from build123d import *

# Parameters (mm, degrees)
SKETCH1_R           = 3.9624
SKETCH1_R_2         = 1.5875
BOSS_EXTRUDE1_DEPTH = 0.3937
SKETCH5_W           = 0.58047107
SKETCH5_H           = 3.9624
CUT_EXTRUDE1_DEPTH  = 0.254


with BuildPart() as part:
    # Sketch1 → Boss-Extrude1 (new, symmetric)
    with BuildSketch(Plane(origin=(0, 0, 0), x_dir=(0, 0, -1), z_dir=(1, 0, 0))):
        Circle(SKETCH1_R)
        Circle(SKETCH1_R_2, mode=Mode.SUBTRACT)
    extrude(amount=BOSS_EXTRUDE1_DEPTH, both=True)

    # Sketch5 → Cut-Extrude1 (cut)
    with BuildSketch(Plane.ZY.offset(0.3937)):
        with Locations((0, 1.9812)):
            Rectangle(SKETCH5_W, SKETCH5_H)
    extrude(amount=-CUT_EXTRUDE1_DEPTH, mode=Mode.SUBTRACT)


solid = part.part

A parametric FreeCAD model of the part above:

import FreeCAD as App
import Part
import Sketcher

V = App.Vector
Q = App.Units.Quantity


def add_polygon(sketch, points):
    """Adds a closed chain of lines whose ends are joined by coincident constraints."""
    first, n = sketch.GeometryCount, len(points)
    for a, b in zip(points, points[1:] + points[:1]):
        sketch.addGeometry(Part.LineSegment(App.Vector(*a, 0), App.Vector(*b, 0)), False)
    for i in range(n):
        sketch.addConstraint(Sketcher.Constraint("Coincident", first + i, 2, first + (i + 1) % n, 1))

doc = App.newDocument("Part")
body = doc.addObject("PartDesign::Body", "Body")

# Sketch on YZ plane
sketch1 = body.newObject("Sketcher::SketchObject", "Sketch")
sketch1.AttachmentSupport = (doc.getObject("YZ_Plane"), [""])
sketch1.MapMode = "FlatFace"
sketch1.addGeometry(Part.Circle(V(0, 0, 0), V(0, 0, 1), 4), False)
sketch1.addGeometry(Part.Circle(V(0, 0, 0), V(0, 0, 1), 1.6), False)
sketch1.addConstraint(Sketcher.Constraint("Coincident", 0, 3, -1, 1))
sketch1.addConstraint(Sketcher.Constraint("Coincident", 1, 3, -1, 1))
sketch1.addConstraint(Sketcher.Constraint("Diameter", 0, Q("0.312 in")))
sketch1.addConstraint(Sketcher.Constraint("Diameter", 1, Q("0.125 in")))
pad1 = body.newObject("PartDesign::Pad", "Pad")
pad1.Profile = sketch1
pad1.Length = Q("0.031 in")
pad1.Midplane = True

# Sketch on YZ plane
sketch2 = body.newObject("Sketcher::SketchObject", "Sketch001")
sketch2.AttachmentSupport = (doc.getObject("YZ_Plane"), [""])
sketch2.MapMode = "FlatFace"
sketch2.AttachmentOffset = App.Placement(V(0, 0, -0.0155 * 25.4), App.Rotation())
add_polygon(sketch2, [(4, -0.3), (0, -0.3), (0, 0.3), (4, 0.3)])  # lines 0-3
sketch2.addConstraint(Sketcher.Constraint("Horizontal", 0))
sketch2.addConstraint(Sketcher.Constraint("Vertical", 1))
sketch2.addConstraint(Sketcher.Constraint("Horizontal", 2))
sketch2.addConstraint(Sketcher.Constraint("Vertical", 3))
sketch2.addConstraint(Sketcher.Constraint("Symmetric", 0, 2, 1, 2, -1, 1))
sketch2.addConstraint(Sketcher.Constraint("DistanceX", 0, 2, 0, 1, Q("0.156 in")))
sketch2.addConstraint(Sketcher.Constraint("DistanceY", 1, 1, 1, 2, 0.580471))
pocket1 = body.newObject("PartDesign::Pocket", "Pocket")
pocket1.Profile = sketch2
pocket1.Length = Q("0.01 in")
pocket1.Reversed = True

doc.recompute()
